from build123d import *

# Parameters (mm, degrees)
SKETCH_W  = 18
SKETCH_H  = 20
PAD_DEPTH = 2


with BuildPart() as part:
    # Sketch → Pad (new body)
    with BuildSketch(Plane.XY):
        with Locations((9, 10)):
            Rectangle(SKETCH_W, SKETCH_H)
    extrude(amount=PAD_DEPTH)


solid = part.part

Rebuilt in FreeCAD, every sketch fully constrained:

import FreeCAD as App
import Part
import Sketcher
from FreeCAD import Vector

doc = App.newDocument("Part")
params = doc.addObject("Spreadsheet::Sheet", "Params")
for row, (alias, value) in enumerate([
    ("sketch1_width", "18 mm"),
    ("sketch1_height", "20 mm"),
    ("pad1_length", "2 mm"),
], start=1):
    params.set(f"A{row}", alias)
    params.set(f"B{row}", "=" + value)
    params.setAlias(f"B{row}", alias)

body = doc.addObject("PartDesign::Body", "Body")

# Sketch on XY plane
sketch1 = body.newObject("Sketcher::SketchObject", "Sketch")
sketch1.AttachmentSupport = (doc.getObject("XY_Plane"), [""])
sketch1.MapMode = "FlatFace"
sketch1.addGeometry([
    Part.LineSegment(Vector(0, 20, 0), Vector(0, 0, 0)),
    Part.LineSegment(Vector(0, 0, 0), Vector(18, 0, 0)),
    Part.LineSegment(Vector(18, 0, 0), Vector(18, 20, 0)),
    Part.LineSegment(Vector(18, 20, 0), Vector(0, 20, 0)),
], False)
sketch1.addConstraint([
    Sketcher.Constraint("Coincident", 0, 2, 1, 1),
    Sketcher.Constraint("Coincident", 1, 2, 2, 1),
    Sketcher.Constraint("Coincident", 2, 2, 3, 1),
    Sketcher.Constraint("Coincident", 3, 2, 0, 1),
    Sketcher.Constraint("Vertical", 0),
    Sketcher.Constraint("Horizontal", 1),
    Sketcher.Constraint("Vertical", 2),
    Sketcher.Constraint("Horizontal", 3),
    Sketcher.Constraint("Coincident", 0, 2, -1, 1),
    Sketcher.Constraint("DistanceX", 1, 1, 1, 2, 18.0),
    Sketcher.Constraint("DistanceY", 0, 2, 0, 1, 20.0),
])
sketch1.setExpression("Constraints[9]", "Params.sketch1_width")
sketch1.setExpression("Constraints[10]", "Params.sketch1_height")
pad1 = body.newObject("PartDesign::Pad", "Pad")
pad1.Profile = sketch1
pad1.setExpression("Length", "Params.pad1_length")

doc.recompute()
